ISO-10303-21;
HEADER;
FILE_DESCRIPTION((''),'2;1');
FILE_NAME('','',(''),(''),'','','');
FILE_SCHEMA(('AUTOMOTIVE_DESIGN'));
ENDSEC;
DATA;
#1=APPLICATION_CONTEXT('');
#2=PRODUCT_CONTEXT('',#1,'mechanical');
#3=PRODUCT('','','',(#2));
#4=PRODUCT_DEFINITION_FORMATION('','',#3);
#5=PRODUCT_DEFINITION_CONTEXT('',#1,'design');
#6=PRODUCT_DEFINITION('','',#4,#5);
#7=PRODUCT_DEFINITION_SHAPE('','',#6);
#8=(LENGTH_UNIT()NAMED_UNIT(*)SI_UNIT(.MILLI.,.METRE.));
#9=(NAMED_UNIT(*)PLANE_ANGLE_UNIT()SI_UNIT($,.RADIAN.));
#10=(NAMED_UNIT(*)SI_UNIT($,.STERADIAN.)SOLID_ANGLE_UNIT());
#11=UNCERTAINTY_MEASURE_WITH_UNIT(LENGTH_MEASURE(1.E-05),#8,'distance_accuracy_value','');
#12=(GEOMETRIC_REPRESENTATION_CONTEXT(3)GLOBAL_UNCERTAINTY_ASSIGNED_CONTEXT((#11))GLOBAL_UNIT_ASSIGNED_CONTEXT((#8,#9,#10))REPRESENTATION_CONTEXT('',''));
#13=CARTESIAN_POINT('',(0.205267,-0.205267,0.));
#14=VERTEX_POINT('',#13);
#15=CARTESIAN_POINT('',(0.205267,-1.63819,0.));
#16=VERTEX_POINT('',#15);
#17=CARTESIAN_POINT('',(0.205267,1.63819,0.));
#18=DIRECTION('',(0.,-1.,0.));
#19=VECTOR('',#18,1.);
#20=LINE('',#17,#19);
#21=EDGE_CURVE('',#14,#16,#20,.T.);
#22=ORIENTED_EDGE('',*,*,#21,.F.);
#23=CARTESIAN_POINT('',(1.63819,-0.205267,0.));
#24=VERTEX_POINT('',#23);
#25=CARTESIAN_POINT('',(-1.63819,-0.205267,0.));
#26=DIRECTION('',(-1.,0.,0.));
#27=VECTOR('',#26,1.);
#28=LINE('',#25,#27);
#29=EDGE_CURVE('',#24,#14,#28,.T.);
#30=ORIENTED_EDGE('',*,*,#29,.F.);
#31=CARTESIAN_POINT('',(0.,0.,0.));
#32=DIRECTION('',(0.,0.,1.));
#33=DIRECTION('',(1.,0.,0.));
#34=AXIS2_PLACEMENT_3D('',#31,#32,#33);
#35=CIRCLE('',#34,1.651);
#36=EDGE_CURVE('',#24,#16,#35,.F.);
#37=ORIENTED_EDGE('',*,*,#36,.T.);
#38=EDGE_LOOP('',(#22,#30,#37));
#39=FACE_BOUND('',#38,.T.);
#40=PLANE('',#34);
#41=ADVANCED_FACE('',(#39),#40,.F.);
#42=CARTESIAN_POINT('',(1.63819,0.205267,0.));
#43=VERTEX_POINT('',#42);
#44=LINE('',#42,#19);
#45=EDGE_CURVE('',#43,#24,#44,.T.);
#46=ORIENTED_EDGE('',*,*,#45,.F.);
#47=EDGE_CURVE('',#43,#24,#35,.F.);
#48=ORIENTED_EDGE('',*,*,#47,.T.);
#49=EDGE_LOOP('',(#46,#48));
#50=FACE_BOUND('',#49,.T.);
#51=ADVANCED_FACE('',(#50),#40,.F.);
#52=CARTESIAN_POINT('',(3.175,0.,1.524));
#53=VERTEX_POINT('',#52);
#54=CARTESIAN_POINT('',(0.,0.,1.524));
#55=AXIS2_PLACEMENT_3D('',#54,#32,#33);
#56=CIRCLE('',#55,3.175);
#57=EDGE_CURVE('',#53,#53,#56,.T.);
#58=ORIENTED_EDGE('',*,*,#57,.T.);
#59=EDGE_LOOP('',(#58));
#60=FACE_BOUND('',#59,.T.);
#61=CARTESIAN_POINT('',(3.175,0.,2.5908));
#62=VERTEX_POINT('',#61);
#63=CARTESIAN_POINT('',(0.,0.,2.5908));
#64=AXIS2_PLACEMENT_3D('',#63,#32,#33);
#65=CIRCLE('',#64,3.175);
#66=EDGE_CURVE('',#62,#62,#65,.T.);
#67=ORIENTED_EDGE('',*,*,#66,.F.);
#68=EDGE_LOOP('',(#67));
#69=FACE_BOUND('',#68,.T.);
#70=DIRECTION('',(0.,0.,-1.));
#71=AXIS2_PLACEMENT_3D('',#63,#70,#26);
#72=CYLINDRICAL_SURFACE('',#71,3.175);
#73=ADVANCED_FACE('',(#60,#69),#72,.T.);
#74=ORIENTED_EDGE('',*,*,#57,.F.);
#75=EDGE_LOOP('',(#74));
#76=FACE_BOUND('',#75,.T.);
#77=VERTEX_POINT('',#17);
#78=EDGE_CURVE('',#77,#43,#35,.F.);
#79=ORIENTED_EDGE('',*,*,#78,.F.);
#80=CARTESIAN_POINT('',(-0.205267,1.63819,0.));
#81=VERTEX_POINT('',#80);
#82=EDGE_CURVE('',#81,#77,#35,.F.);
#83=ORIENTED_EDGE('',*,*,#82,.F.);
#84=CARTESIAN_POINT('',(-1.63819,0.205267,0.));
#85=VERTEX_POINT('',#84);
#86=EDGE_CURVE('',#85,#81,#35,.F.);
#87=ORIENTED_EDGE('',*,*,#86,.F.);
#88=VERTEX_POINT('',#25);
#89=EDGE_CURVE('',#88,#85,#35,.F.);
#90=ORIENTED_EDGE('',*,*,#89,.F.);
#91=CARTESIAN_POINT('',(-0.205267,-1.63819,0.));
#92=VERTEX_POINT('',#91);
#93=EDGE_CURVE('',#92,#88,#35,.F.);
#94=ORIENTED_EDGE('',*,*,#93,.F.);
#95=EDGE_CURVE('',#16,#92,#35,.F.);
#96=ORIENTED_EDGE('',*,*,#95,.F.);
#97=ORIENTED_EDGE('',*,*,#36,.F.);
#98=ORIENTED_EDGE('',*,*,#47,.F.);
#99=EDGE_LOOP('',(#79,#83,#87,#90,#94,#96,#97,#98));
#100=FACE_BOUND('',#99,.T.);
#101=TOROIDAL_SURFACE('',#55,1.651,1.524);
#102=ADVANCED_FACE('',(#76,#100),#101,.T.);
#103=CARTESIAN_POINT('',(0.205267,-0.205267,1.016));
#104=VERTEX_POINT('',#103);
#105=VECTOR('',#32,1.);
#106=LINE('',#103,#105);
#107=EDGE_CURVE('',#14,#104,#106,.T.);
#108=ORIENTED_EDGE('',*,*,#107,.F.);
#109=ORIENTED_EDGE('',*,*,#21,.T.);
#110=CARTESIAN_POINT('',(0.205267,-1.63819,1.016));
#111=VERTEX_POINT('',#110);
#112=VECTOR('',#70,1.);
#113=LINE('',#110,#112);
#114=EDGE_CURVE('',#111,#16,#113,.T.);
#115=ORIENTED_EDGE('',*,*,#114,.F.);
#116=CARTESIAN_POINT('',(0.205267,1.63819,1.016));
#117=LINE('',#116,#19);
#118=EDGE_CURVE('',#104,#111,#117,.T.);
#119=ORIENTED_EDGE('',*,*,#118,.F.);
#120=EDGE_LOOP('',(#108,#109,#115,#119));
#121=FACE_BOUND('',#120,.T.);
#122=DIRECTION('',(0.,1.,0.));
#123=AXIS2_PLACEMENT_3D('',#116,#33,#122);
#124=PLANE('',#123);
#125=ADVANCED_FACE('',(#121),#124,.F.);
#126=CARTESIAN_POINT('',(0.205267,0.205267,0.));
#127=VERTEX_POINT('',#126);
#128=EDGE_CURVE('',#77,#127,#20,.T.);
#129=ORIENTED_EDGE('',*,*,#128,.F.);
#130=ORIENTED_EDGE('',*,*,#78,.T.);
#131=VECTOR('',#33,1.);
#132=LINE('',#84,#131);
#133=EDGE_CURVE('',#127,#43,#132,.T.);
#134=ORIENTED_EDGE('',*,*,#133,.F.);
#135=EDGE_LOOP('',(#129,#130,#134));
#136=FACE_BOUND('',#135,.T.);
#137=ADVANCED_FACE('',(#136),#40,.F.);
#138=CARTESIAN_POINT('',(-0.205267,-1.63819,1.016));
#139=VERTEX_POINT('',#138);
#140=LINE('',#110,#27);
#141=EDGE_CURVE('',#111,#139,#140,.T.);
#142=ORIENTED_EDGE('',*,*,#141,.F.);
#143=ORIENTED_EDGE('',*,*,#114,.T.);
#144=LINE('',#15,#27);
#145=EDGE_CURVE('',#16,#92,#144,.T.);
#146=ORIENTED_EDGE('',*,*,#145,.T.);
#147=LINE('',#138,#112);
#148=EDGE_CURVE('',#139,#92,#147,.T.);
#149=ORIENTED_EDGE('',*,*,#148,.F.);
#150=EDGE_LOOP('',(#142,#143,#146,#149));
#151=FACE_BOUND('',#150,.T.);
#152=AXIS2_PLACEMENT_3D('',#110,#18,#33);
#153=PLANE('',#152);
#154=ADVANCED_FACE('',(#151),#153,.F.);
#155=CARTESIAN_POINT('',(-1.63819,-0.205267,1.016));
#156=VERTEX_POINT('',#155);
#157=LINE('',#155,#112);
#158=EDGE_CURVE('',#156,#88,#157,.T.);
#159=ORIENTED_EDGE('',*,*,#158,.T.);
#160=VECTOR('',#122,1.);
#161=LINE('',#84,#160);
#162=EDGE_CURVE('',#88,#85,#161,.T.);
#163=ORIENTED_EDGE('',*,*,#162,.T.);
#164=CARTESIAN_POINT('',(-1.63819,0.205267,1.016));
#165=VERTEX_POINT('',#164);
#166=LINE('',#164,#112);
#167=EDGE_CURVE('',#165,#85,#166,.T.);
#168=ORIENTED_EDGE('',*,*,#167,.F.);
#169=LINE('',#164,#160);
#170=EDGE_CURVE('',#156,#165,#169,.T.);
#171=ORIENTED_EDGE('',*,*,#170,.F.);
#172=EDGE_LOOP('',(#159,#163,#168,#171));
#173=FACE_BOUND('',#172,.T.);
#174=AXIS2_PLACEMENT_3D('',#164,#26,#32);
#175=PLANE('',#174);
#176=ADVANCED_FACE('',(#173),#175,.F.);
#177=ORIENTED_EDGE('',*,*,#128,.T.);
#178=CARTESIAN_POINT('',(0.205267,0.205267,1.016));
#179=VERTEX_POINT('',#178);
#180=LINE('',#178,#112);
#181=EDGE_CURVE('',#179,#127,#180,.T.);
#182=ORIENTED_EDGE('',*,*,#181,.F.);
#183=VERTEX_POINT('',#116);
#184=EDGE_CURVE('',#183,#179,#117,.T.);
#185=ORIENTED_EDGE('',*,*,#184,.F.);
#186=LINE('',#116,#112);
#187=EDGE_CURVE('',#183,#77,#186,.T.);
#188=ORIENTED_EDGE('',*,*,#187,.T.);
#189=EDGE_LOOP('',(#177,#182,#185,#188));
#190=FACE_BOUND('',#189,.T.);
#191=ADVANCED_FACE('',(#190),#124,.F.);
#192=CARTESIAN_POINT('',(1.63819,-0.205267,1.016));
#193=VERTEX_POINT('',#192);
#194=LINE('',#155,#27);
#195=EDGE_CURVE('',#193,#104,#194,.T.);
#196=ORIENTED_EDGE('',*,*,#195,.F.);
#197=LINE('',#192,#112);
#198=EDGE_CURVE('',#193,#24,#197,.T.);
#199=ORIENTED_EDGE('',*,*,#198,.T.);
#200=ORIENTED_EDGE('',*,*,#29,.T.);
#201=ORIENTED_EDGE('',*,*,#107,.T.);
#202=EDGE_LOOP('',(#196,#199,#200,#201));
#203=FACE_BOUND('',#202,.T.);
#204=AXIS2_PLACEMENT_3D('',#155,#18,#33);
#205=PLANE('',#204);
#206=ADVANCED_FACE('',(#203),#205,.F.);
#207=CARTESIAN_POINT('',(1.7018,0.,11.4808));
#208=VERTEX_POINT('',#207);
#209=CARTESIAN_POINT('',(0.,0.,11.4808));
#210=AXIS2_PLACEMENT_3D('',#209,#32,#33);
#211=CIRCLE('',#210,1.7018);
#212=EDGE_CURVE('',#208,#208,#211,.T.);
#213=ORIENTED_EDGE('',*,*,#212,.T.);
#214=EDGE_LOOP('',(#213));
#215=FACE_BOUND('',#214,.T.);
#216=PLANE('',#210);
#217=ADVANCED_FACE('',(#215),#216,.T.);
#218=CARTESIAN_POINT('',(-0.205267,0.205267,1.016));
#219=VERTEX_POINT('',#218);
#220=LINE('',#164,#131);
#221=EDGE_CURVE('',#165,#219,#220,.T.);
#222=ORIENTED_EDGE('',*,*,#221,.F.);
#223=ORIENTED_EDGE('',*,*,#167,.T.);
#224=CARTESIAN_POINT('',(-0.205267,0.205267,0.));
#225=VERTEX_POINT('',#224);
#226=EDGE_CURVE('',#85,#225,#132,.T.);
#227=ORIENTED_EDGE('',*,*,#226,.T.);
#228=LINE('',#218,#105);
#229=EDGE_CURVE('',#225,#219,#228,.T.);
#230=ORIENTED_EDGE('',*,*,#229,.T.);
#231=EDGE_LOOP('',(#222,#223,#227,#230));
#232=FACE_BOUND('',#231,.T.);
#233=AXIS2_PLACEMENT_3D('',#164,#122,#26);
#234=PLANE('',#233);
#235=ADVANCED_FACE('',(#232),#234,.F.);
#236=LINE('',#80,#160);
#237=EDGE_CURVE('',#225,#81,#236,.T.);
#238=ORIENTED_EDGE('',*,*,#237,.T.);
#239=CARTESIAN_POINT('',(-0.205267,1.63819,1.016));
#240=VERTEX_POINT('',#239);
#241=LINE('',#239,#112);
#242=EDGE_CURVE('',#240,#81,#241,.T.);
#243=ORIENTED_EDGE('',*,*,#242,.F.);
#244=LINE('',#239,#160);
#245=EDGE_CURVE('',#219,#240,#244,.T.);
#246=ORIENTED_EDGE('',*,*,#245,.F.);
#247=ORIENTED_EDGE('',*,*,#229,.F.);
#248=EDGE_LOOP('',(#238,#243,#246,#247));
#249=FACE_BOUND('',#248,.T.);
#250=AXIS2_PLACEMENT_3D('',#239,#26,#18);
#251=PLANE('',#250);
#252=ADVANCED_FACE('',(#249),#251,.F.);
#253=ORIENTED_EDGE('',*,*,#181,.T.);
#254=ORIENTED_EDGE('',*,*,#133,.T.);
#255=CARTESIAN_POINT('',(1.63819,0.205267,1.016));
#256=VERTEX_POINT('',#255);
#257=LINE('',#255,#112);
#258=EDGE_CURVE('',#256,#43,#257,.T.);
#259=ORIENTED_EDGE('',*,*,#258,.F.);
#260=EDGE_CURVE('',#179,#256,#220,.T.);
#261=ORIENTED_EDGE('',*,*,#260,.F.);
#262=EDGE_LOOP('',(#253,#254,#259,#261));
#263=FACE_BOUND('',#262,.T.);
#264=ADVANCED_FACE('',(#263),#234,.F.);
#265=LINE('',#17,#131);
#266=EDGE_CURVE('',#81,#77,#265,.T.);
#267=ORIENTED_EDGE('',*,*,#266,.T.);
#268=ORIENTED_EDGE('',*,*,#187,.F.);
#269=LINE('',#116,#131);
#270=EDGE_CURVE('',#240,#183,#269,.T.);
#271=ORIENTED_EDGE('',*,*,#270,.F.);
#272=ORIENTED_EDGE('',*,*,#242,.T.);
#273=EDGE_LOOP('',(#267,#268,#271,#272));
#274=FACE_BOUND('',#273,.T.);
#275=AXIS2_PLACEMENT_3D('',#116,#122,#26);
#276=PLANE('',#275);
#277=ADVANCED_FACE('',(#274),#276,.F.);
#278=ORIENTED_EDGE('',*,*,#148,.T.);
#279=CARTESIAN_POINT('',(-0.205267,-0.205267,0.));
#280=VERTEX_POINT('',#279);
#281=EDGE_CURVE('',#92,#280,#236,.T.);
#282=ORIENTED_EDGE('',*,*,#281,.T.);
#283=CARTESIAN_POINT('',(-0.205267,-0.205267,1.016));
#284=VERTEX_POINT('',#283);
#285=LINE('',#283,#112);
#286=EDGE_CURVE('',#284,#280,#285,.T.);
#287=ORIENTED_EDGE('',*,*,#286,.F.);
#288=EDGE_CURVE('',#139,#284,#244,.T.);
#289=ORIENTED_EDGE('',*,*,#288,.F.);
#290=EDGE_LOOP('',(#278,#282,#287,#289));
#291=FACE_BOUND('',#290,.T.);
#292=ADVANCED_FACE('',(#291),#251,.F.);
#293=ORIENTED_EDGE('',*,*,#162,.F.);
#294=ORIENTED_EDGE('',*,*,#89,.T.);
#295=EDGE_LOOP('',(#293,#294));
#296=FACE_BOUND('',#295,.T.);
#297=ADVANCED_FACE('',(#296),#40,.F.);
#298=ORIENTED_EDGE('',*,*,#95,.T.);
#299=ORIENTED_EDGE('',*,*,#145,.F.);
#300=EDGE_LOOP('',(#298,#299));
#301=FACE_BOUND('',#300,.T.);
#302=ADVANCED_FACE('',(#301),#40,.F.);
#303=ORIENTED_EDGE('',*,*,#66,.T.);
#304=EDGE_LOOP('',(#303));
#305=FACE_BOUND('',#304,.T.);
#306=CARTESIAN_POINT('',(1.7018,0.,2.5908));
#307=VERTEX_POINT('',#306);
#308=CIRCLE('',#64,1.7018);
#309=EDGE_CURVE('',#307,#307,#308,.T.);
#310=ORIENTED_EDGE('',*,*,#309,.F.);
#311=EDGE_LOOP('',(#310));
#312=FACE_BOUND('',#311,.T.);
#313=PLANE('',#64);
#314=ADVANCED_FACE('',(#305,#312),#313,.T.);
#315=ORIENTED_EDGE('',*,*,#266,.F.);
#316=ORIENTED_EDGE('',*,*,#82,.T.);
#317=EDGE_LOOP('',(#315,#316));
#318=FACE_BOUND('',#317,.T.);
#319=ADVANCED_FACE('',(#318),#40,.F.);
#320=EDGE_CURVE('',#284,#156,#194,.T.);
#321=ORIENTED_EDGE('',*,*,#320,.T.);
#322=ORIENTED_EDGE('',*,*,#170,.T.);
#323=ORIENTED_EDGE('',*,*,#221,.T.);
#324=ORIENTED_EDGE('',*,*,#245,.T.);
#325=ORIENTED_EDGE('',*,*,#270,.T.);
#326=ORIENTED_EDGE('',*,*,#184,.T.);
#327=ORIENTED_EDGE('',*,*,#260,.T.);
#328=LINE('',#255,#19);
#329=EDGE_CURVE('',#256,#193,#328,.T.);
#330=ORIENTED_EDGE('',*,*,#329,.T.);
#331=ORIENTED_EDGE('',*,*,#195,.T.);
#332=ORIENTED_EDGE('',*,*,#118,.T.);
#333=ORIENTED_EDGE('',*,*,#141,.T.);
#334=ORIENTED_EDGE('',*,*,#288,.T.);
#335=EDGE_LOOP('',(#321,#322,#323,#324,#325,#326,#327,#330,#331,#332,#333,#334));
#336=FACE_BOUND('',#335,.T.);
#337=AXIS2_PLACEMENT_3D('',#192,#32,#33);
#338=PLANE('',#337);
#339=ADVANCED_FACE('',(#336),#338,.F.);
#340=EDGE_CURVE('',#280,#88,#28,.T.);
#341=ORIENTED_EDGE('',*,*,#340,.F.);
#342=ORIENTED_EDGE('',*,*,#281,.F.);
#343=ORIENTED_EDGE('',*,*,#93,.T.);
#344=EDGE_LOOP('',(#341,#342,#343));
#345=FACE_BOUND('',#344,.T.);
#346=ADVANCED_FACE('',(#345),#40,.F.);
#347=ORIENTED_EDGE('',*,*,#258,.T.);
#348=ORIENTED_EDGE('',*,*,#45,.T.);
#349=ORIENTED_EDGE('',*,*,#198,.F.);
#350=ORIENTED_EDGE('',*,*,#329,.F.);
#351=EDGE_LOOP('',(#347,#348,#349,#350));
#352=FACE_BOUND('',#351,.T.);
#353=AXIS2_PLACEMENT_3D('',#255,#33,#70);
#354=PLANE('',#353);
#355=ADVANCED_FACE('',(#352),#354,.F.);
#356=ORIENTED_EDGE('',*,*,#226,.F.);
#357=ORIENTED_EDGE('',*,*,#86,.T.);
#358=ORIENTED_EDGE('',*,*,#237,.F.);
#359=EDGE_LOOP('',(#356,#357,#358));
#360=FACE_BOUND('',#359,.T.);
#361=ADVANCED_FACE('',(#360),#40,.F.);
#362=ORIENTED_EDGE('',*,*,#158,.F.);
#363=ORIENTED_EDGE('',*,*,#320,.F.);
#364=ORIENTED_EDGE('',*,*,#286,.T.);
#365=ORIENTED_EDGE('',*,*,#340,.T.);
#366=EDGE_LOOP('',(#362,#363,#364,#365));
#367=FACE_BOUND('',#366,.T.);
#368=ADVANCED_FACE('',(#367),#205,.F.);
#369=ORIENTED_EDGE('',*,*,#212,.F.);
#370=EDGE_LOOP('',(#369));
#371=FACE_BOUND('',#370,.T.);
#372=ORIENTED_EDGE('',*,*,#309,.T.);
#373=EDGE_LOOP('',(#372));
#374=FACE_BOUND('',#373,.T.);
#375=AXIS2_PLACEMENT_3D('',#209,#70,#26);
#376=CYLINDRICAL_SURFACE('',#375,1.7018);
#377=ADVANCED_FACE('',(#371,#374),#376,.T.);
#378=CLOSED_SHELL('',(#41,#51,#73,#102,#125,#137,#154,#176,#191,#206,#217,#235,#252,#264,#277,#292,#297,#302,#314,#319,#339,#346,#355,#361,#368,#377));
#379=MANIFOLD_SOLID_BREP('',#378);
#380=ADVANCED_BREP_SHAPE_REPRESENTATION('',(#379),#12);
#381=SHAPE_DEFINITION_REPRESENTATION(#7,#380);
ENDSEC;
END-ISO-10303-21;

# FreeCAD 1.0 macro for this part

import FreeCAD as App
import Part
import Sketcher
Q = App.Units.Quantity


def edges_at(feature, points):
    """Names of the edges that pass closest to the given points."""
    edges = feature.Shape.Edges
    near = lambda p: min(range(len(edges)), key=lambda i: edges[i].distToShape(Part.Vertex(*p))[0])
    return sorted({f"Edge{near(p) + 1}" for p in points})


def add_polygon(sketch, points):
    """Adds a closed chain of lines whose ends are joined by coincident constraints."""
    first, n = sketch.GeometryCount, len(points)
    for a, b in zip(points, points[1:] + points[:1]):
        sketch.addGeometry(Part.LineSegment(App.Vector(*a, 0), App.Vector(*b, 0)), False)
    for i in range(n):
        sketch.addConstraint(Sketcher.Constraint("Coincident", first + i, 2, first + (i + 1) % n, 1))

doc = App.newDocument("Part")
params = doc.addObject("Spreadsheet::Sheet", "Params")
for row, (alias, value) in enumerate([
    ("sketch1_diameter", "0.25 in"),
    ("pad1_length", "0.102 in"),
    ("fillet_radius", "0.06 in"),
    ("sketch2_diameter", "0.134 in"),
    ("pad2_length", "0.35 in"),
    ("pocket1_length", "0.04 in"),
], start=1):
    params.set(f"A{row}", alias)
    params.set(f"B{row}", "=" + value)
    params.setAlias(f"B{row}", alias)

body = doc.addObject("PartDesign::Body", "Body")

# Sketch on XY plane
sketch1 = doc.addObject("Sketcher::SketchObject", "Sketch")
body.addObject(sketch1)
sketch1.AttachmentSupport = (doc.XY_Plane, [""])
sketch1.MapMode = "FlatFace"
sketch1.addGeometry(Part.Circle(App.Vector(0, 0, 0), App.Vector(0, 0, 1), 3.2), False)
sketch1.addConstraint(Sketcher.Constraint("Coincident", 0, 3, -1, 1))
sketch1.addConstraint(Sketcher.Constraint("Diameter", 0, Q("0.25 in")))
sketch1.setExpression("Constraints[1]", "Params.sketch1_diameter")
pad1 = doc.addObject("PartDesign::Pad", "Pad")
body.addObject(pad1)
pad1.Profile = sketch1
pad1.setExpression("Length", "Params.pad1_length")
doc.recompute()

fillet = doc.addObject("PartDesign::Fillet", "Fillet")
body.addObject(fillet)
fillet.Base = (pad1, edges_at(pad1, [(-3.175, 0, 0)]))
fillet.setExpression("Radius", "Params.fillet_radius")

# Sketch on XY plane
sketch2 = doc.addObject("Sketcher::SketchObject", "Sketch001")
body.addObject(sketch2)
sketch2.AttachmentSupport = (doc.XY_Plane, [""])
sketch2.MapMode = "FlatFace"
sketch2.AttachmentOffset = App.Placement(App.Vector(0, 0, 0.102 * 25.4), App.Rotation())
sketch2.addGeometry(Part.Circle(App.Vector(0, 0, 0), App.Vector(0, 0, 1), 1.7), False)
sketch2.addConstraint(Sketcher.Constraint("Coincident", 0, 3, -1, 1))
sketch2.addConstraint(Sketcher.Constraint("Diameter", 0, Q("0.134 in")))
sketch2.setExpression("Constraints[1]", "Params.sketch2_diameter")
pad2 = doc.addObject("PartDesign::Pad", "Pad001")
body.addObject(pad2)
pad2.Profile = sketch2
pad2.setExpression("Length", "Params.pad2_length")

# Sketch on XY plane
sketch3 = doc.addObject("Sketcher::SketchObject", "Sketch002")
body.addObject(sketch3)
sketch3.AttachmentSupport = (doc.XY_Plane, [""])
sketch3.MapMode = "FlatFace"
add_polygon(sketch3, [(1.64, 0.21), (1.64, -0.21), (-1.64, -0.21), (-1.64, 0.21)])  # lines 0-3
sketch3.addConstraint(Sketcher.Constraint("Vertical", 0))
sketch3.addConstraint(Sketcher.Constraint("Horizontal", 1))
sketch3.addConstraint(Sketcher.Constraint("Vertical", 2))
sketch3.addConstraint(Sketcher.Constraint("Horizontal", 3))
sketch3.addConstraint(Sketcher.Constraint("Symmetric", 0, 2, 2, 2, -1, 1))
sketch3.addConstraint(Sketcher.Constraint("DistanceX", 1, 2, 1, 1, Q("3.27638 mm")))
sketch3.addConstraint(Sketcher.Constraint("DistanceY", 0, 2, 0, 1, Q("0.410535 mm")))
pocket1 = doc.addObject("PartDesign::Pocket", "Pocket")
body.addObject(pocket1)
pocket1.Profile = sketch3
pocket1.setExpression("Length", "Params.pocket1_length")
pocket1.Reversed = True
doc.recompute()

polarpattern = doc.addObject("PartDesign::PolarPattern", "PolarPattern")
body.addObject(polarpattern)
polarpattern.Originals = [pocket1]
polarpattern.Axis = (doc.Z_Axis, [""])
polarpattern.Angle = 90
polarpattern.Occurrences = 2
polarpattern.Reversed = True
body.Tip = polarpattern

doc.recompute()
